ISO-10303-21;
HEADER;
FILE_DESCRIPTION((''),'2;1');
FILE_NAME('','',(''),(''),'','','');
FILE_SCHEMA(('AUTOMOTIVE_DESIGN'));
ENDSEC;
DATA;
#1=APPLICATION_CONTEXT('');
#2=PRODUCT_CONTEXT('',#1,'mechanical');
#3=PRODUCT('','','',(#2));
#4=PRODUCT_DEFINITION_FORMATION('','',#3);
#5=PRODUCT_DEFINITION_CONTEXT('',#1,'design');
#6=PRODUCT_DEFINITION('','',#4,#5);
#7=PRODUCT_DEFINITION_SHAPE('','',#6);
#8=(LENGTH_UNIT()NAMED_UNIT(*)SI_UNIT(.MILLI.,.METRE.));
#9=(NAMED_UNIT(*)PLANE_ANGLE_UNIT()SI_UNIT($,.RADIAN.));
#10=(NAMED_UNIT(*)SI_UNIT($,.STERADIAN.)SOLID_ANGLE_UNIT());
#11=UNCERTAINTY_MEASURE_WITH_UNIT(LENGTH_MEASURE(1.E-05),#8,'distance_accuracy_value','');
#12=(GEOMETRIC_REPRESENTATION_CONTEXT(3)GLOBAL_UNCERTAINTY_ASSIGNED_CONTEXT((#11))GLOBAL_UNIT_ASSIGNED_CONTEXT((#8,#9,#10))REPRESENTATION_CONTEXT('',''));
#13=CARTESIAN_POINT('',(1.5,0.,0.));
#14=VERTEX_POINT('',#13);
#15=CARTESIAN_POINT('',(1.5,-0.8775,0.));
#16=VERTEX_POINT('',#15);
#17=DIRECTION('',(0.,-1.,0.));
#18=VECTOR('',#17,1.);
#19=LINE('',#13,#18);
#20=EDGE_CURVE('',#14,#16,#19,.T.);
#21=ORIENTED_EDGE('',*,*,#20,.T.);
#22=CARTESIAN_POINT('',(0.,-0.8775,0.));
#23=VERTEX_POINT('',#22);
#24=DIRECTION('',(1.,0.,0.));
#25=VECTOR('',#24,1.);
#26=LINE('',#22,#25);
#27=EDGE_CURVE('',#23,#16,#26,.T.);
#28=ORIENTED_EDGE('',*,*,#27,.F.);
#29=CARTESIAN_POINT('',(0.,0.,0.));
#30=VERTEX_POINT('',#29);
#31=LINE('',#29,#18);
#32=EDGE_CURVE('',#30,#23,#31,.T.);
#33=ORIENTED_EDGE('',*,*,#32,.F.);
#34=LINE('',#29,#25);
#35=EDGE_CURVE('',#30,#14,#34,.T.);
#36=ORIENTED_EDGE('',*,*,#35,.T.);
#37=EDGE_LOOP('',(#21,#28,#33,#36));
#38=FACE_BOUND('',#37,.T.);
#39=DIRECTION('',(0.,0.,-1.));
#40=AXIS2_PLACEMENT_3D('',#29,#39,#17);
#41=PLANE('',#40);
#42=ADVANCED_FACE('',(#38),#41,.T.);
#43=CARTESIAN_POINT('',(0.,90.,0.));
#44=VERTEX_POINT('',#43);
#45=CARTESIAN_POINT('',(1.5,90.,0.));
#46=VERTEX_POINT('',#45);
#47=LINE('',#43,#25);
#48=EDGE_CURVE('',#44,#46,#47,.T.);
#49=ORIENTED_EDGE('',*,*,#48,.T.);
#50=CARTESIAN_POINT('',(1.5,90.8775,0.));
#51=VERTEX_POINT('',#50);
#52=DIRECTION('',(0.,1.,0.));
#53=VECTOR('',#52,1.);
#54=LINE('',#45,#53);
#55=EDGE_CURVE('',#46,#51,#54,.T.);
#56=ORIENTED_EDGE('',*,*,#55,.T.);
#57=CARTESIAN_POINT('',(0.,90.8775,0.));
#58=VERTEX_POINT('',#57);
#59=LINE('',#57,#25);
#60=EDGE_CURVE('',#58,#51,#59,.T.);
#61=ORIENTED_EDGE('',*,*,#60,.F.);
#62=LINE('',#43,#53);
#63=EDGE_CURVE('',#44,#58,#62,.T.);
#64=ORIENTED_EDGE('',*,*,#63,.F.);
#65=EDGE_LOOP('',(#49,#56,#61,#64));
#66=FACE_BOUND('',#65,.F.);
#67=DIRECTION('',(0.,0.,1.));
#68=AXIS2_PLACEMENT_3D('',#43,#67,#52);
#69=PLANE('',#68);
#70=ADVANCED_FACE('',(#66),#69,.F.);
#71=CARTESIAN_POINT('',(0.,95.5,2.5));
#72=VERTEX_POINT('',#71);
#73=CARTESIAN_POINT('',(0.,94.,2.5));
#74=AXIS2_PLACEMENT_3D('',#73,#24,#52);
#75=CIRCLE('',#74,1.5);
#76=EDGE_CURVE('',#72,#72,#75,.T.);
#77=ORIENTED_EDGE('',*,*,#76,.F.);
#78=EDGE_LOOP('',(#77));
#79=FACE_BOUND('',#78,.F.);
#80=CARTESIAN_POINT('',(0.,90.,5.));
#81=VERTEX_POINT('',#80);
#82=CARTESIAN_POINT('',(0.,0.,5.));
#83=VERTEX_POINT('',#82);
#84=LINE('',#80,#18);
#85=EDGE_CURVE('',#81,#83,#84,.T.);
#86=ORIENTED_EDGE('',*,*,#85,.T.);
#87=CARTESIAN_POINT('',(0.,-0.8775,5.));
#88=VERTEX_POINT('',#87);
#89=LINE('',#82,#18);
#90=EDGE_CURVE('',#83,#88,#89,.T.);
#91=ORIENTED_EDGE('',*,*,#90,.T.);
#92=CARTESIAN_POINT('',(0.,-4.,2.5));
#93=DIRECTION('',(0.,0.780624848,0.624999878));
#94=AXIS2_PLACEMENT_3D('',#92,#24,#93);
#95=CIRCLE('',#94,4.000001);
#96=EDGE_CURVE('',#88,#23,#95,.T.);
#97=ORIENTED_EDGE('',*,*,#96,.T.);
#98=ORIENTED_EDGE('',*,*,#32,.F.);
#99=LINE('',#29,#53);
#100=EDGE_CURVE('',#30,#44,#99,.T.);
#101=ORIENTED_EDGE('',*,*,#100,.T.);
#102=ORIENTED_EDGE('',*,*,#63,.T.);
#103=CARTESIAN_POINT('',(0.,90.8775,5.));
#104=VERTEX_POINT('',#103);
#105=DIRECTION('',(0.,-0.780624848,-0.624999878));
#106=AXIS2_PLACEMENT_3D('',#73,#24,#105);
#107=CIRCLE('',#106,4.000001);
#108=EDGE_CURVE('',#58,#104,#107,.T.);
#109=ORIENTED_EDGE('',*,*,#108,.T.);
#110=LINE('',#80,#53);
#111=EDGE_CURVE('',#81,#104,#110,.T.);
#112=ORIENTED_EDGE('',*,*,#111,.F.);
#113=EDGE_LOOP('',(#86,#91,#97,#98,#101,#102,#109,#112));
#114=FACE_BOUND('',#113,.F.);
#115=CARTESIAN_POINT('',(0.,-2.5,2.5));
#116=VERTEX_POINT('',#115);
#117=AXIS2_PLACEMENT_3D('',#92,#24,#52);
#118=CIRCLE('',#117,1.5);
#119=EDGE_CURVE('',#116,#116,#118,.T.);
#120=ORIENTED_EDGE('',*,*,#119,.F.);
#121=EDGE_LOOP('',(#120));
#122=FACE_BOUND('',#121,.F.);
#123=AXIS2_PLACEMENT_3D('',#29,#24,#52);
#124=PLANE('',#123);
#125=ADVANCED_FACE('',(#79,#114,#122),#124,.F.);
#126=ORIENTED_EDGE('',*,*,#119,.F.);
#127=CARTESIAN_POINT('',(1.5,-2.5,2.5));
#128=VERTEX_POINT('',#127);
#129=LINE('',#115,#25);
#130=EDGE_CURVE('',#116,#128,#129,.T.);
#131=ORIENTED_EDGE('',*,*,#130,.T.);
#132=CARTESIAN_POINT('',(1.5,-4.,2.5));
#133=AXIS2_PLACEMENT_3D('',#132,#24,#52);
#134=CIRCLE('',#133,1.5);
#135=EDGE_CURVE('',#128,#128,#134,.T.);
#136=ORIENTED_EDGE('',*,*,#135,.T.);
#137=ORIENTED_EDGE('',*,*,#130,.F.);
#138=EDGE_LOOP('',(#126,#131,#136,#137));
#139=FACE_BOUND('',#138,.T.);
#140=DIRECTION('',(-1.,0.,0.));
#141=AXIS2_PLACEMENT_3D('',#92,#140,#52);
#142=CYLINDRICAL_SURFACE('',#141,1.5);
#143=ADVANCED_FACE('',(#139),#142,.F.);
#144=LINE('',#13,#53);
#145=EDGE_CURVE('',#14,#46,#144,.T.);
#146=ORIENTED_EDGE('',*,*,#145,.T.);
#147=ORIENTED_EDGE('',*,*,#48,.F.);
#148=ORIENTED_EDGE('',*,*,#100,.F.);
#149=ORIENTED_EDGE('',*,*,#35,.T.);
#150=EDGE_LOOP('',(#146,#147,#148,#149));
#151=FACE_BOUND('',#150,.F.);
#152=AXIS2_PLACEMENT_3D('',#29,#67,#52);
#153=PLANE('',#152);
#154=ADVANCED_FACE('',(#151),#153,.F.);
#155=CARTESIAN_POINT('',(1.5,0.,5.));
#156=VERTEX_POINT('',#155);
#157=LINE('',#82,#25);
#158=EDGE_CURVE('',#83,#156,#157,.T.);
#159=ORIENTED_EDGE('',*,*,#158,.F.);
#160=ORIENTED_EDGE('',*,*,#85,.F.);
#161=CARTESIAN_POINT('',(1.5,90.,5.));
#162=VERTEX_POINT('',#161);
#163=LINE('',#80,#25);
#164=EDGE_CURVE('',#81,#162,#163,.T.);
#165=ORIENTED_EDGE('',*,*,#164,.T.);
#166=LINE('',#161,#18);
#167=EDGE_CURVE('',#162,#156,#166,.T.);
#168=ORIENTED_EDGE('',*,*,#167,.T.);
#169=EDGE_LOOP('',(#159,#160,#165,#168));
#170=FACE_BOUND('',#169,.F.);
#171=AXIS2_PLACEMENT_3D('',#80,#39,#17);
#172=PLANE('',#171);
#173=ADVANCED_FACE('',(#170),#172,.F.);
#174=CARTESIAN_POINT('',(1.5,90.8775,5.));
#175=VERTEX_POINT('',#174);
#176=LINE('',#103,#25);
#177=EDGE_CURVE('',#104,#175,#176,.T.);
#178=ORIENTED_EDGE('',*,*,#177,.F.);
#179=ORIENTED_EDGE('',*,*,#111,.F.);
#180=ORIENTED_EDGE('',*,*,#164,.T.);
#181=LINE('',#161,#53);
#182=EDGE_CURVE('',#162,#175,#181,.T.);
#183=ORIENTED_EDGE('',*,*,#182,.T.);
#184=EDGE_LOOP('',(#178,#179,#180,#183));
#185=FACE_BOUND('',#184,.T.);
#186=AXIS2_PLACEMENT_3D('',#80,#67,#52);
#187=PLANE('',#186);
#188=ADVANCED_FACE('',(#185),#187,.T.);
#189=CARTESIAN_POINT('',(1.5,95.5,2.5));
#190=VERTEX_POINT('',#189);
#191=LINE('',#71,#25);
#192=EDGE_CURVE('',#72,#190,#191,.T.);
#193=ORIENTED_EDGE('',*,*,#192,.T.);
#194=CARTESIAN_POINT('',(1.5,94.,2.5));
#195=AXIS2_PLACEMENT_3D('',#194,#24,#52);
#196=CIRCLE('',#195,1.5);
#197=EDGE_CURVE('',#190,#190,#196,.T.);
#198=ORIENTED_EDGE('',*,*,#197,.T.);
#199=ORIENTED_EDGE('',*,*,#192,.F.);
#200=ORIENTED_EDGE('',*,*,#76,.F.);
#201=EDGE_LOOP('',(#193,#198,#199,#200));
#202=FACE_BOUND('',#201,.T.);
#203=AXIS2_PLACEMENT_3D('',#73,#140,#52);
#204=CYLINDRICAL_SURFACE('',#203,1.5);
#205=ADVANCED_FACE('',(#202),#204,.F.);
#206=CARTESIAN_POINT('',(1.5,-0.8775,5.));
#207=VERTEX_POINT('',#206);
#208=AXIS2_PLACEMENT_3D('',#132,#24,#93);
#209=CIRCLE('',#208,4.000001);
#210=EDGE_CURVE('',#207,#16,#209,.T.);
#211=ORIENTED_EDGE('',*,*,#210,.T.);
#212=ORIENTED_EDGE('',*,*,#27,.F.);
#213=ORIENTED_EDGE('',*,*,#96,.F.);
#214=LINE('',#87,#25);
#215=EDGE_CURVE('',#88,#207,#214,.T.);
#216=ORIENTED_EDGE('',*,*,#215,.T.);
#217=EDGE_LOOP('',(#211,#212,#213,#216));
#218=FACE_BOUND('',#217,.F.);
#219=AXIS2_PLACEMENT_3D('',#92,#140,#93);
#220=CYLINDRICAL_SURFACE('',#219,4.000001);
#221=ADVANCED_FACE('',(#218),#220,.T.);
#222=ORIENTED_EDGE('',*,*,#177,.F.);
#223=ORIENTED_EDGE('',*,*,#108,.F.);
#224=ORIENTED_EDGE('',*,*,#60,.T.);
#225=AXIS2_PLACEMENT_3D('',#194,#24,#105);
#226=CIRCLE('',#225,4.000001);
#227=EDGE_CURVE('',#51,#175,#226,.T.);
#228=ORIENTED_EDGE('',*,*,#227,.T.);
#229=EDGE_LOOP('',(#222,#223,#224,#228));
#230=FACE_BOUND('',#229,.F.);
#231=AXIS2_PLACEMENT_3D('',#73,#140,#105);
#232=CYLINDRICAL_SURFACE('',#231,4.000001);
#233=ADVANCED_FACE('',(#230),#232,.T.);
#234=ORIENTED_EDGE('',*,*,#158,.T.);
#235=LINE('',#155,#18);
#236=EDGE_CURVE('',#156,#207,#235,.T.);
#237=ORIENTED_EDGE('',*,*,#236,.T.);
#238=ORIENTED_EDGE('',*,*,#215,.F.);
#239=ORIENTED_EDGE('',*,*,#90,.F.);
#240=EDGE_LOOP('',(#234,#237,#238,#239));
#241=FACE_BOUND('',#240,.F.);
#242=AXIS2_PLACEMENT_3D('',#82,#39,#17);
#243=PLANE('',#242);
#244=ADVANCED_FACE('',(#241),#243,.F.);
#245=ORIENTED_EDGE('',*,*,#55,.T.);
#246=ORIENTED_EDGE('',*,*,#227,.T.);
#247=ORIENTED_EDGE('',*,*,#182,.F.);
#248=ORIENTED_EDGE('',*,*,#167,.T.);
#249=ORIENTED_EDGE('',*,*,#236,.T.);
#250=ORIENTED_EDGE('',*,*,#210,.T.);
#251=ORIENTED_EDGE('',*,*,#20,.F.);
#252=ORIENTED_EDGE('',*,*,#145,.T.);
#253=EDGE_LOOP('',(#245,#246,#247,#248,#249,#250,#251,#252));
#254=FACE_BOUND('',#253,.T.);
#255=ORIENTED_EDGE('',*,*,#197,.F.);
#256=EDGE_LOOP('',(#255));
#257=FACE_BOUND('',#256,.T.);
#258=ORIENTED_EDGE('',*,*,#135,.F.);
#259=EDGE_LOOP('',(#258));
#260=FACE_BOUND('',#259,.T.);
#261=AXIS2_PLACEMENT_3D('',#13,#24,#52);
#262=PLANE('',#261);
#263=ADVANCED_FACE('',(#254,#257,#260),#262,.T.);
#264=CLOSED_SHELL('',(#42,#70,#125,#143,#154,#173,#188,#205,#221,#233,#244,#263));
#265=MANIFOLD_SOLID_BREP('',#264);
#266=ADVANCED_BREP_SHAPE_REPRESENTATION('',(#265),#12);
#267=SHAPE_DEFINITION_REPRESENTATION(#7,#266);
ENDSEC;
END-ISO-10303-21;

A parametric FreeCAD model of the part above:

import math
import FreeCAD as App
import Part
import Sketcher
from FreeCAD import Vector

doc = App.newDocument("Part")
body = doc.addObject("PartDesign::Body", "Body")

sketch1 = body.newObject("Sketcher::SketchObject", "Sketch")
sketch1.AttachmentSupport = (doc.getObject("YZ_Plane"), [""])
sketch1.MapMode = "FlatFace"
sketch1.addGeometry(Part.LineSegment(Vector(-0.9, 0, 0), Vector(90.9, 0, 0)), False)
sketch1.addGeometry(Part.ArcOfCircle(Part.Circle(Vector(94, 2.5, 0), Vector(0, 0, 1), 4), math.radians(-141), math.radians(141)), False)
sketch1.addGeometry(Part.LineSegment(Vector(90.9, 5, 0), Vector(-0.9, 5, 0)), False)
sketch1.addGeometry(Part.ArcOfCircle(Part.Circle(Vector(-4, 2.5, 0), Vector(0, 0, 1), 4), math.radians(39), math.radians(321)), False)
sketch1.addGeometry(Part.Circle(Vector(-4, 2.5, 0), Vector(0, 0, 1), 1.5), False)
sketch1.addGeometry(Part.Circle(Vector(94, 2.5, 0), Vector(0, 0, 1), 1.5), False)
sketch1.addConstraint(Sketcher.Constraint("Coincident", 0, 2, 1, 1))
sketch1.addConstraint(Sketcher.Constraint("Coincident", 1, 2, 2, 1))
sketch1.addConstraint(Sketcher.Constraint("Coincident", 2, 2, 3, 1))
sketch1.addConstraint(Sketcher.Constraint("Coincident", 3, 2, 0, 1))
sketch1.addConstraint(Sketcher.Constraint("Horizontal", 0))
sketch1.addConstraint(Sketcher.Constraint("Horizontal", 2))
sketch1.addConstraint(Sketcher.Constraint("Coincident", 4, 3, 3, 3))
sketch1.addConstraint(Sketcher.Constraint("Coincident", 5, 3, 1, 3))
sketch1.addConstraint(Sketcher.Constraint("Equal", 1, 3))
sketch1.addConstraint(Sketcher.Constraint("Equal", 4, 5))
sketch1.addConstraint(Sketcher.Constraint("PointOnObject", 0, 2, -1))
sketch1.addConstraint(Sketcher.Constraint("Horizontal", 1, 3, 3, 3))
sketch1.addConstraint(Sketcher.Constraint("Vertical", 0, 2, 1, 2))
sketch1.addConstraint(Sketcher.Constraint("Diameter", 4, 3.0))
sketch1.addConstraint(Sketcher.Constraint("DistanceY", -1, 1, 1, 2, 5.0))
sketch1.addConstraint(Sketcher.Constraint("Radius", 1, 4.0))
sketch1.addConstraint(Sketcher.Constraint("DistanceX", -1, 1, 1, 3, 94.0))
sketch1.addConstraint(Sketcher.Constraint("DistanceX", 3, 3, -1, 1, 4.0))
pad1 = body.newObject("PartDesign::Pad", "Pad")
pad1.Profile = sketch1
pad1.Length = 1.5

doc.recompute()
